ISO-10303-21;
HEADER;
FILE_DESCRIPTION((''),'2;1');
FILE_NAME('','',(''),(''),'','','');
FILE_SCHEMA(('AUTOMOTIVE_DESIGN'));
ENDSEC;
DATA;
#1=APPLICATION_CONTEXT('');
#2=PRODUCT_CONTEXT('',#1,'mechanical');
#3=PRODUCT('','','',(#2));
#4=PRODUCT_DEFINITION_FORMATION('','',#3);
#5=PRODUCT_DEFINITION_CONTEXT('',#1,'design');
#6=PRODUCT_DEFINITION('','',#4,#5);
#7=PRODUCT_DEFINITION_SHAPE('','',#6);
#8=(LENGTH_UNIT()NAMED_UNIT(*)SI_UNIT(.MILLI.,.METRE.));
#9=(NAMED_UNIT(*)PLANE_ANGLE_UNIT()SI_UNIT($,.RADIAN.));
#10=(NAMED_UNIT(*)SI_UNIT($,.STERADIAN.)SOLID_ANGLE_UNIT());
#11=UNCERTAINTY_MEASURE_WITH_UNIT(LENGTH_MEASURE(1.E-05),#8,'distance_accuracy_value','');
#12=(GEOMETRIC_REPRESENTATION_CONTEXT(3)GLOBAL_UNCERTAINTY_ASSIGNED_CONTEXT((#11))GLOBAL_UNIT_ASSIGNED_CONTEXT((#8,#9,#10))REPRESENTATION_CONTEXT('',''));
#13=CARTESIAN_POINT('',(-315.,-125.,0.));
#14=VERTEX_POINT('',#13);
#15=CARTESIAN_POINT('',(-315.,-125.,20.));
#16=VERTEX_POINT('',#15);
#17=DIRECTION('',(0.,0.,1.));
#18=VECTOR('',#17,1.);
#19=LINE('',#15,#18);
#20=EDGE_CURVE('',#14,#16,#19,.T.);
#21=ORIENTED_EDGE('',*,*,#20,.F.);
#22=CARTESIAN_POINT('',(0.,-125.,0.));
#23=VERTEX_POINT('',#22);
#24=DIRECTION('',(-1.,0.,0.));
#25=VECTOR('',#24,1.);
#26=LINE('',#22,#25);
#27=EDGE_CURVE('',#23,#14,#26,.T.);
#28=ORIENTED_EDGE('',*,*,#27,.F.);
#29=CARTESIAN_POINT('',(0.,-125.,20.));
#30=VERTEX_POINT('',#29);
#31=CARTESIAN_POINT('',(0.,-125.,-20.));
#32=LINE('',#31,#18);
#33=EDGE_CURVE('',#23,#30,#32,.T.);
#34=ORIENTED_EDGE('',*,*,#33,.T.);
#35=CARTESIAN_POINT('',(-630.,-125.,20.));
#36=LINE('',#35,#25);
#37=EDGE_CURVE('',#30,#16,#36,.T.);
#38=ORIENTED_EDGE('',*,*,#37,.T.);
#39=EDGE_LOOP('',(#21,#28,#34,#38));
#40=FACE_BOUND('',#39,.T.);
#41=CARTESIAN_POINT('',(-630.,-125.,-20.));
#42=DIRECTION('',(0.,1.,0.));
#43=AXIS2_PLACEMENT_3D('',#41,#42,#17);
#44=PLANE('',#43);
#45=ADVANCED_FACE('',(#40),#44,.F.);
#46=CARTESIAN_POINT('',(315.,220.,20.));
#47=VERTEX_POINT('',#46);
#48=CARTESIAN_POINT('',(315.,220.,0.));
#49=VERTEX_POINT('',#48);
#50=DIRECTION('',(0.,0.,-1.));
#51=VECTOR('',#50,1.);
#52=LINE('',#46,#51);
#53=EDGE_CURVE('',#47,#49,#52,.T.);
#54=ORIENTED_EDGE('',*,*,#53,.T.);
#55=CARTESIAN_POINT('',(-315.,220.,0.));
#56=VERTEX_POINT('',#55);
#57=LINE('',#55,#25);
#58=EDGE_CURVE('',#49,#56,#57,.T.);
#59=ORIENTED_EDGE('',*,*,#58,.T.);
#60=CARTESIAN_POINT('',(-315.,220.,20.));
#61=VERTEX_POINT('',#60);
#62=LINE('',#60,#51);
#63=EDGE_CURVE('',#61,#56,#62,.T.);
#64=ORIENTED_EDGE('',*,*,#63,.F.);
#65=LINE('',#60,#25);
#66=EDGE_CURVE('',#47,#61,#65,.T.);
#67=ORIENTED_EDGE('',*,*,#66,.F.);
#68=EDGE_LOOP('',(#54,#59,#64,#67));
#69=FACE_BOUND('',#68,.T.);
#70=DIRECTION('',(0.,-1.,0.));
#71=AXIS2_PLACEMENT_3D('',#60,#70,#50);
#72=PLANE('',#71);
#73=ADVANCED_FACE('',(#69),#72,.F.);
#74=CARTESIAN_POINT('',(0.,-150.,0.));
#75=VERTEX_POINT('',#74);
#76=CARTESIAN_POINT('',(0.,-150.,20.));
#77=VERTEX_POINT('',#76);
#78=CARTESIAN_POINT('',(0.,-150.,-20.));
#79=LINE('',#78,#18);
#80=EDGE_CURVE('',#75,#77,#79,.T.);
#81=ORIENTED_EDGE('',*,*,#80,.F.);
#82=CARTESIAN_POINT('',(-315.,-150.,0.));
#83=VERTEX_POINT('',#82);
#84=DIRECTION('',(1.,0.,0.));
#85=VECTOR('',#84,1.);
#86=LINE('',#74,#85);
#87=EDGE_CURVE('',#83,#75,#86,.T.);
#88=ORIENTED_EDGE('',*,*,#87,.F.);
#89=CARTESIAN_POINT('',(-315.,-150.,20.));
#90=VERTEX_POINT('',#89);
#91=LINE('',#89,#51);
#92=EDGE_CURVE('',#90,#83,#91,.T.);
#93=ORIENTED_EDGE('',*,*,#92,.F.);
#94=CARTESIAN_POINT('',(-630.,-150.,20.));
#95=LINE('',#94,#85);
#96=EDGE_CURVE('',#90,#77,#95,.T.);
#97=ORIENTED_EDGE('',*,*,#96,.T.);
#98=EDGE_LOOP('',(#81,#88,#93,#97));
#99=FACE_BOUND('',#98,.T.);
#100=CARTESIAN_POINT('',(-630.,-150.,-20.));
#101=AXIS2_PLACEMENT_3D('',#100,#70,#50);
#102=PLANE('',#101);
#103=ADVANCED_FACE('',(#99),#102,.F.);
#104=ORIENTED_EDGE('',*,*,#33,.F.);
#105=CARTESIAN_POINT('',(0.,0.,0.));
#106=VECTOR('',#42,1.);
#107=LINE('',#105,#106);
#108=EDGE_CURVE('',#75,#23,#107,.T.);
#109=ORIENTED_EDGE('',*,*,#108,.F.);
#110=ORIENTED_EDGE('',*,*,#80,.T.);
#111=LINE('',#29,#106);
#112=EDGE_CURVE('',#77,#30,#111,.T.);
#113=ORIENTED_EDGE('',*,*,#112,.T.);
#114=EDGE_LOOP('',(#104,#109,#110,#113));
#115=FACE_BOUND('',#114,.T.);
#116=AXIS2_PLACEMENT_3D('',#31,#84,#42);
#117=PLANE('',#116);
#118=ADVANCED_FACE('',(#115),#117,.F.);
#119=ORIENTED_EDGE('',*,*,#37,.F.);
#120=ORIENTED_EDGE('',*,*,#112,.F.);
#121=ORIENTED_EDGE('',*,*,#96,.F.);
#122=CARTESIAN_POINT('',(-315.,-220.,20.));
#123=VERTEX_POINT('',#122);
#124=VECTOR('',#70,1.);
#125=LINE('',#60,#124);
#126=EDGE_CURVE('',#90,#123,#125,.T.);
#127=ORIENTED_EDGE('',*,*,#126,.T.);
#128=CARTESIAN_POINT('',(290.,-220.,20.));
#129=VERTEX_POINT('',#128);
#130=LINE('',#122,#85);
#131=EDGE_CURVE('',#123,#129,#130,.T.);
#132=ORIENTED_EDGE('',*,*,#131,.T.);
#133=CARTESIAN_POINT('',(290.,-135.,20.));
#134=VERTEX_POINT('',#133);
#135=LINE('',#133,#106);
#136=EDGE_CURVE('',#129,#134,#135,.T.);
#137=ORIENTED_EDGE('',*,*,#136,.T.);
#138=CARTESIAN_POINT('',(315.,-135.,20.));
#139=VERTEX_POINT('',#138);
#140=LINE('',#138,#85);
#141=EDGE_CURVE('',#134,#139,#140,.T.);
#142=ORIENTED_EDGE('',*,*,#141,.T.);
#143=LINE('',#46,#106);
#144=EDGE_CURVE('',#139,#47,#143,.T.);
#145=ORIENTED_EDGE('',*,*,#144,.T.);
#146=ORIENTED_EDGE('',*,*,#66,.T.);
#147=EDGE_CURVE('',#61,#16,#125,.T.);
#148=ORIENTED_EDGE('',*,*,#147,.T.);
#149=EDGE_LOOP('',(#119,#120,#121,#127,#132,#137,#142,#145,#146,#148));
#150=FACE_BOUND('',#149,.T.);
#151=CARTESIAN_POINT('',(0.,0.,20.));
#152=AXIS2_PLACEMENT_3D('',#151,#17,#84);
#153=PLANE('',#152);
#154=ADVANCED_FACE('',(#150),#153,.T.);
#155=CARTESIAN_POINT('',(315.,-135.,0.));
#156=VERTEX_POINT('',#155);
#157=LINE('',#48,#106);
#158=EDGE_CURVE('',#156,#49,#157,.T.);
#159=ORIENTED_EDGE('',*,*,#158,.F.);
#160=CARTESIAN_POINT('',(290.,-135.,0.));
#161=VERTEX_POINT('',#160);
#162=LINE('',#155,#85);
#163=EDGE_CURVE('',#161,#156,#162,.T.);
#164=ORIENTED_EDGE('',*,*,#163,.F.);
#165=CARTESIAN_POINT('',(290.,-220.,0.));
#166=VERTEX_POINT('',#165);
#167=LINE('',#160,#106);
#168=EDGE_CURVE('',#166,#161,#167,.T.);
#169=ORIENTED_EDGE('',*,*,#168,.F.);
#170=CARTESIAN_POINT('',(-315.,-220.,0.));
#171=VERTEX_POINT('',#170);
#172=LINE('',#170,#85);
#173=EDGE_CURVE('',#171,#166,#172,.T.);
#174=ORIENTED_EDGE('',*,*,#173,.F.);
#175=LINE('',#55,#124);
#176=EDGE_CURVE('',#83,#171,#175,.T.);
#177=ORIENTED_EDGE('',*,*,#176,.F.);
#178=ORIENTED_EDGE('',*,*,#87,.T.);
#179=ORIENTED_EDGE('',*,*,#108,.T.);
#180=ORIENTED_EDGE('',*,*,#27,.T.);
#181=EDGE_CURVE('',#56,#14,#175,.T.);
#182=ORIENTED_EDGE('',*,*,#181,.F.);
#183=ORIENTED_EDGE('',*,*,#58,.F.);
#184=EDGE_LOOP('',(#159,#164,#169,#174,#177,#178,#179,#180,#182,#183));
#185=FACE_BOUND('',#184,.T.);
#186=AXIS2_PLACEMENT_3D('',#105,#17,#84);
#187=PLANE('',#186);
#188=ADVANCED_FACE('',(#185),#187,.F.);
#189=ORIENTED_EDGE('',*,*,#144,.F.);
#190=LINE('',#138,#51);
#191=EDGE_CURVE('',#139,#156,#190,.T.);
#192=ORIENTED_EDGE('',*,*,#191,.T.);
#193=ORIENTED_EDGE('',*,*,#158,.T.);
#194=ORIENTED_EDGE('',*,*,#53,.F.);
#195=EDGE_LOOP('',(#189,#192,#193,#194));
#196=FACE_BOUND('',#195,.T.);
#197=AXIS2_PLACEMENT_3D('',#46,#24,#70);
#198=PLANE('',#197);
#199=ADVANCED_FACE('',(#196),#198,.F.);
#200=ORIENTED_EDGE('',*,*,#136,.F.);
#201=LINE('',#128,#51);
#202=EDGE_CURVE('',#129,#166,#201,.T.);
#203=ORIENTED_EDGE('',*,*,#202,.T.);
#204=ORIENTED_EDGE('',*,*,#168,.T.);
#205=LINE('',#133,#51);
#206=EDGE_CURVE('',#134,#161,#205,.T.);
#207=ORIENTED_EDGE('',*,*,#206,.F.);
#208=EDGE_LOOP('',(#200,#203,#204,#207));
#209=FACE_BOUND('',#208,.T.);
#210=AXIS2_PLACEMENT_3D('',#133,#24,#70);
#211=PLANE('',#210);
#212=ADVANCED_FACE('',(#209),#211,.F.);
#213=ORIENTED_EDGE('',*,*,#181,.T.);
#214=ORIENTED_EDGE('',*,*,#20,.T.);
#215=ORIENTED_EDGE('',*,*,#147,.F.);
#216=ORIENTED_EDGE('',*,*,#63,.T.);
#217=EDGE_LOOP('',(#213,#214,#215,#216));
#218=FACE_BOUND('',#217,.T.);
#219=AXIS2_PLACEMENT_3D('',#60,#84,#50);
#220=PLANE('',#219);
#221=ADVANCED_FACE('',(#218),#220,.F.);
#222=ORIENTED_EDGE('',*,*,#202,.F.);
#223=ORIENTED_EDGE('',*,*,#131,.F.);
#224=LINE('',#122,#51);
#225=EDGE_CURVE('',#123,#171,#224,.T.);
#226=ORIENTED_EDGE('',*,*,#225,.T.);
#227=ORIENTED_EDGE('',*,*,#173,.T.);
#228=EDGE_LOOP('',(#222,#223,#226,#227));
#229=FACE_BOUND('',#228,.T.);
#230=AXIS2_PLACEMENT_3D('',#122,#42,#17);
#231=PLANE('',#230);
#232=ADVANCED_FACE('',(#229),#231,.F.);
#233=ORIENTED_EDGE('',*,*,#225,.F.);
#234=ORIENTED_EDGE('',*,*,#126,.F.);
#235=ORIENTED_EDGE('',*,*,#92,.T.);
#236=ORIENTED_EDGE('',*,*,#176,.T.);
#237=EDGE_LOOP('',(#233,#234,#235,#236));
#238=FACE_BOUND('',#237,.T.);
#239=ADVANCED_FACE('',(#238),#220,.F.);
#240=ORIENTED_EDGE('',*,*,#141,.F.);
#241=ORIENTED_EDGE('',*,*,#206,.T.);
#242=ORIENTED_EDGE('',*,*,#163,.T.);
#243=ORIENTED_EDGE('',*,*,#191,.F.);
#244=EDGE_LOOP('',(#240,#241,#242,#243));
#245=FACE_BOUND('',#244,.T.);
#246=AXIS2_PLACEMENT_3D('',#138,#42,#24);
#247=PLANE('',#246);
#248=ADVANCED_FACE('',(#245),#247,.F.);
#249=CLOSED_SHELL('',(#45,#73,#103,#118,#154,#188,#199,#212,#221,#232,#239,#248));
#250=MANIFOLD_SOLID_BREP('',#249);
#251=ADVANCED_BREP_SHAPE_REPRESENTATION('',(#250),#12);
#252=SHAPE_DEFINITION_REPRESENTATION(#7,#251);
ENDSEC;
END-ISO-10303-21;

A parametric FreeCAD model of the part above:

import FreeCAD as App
import Part
import Sketcher

doc = App.newDocument("Part")
body = doc.addObject("PartDesign::Body", "Body")

sketch1 = body.newObject("Sketcher::SketchObject", "Sketch")
sketch1.AttachmentSupport = (doc.getObject("XY_Plane"), [""])
sketch1.MapMode = "FlatFace"
sketch1.addGeometry(Part.LineSegment(App.Vector(290, -135, 0), App.Vector(315, -135, 0)), False)
sketch1.addGeometry(Part.LineSegment(App.Vector(315, -135, 0), App.Vector(315, 220, 0)), False)
sketch1.addGeometry(Part.LineSegment(App.Vector(315, 220, 0), App.Vector(-315, 220, 0)), False)
sketch1.addGeometry(Part.LineSegment(App.Vector(-315, 220, 0), App.Vector(-315, -220, 0)), False)
sketch1.addGeometry(Part.LineSegment(App.Vector(-315, -220, 0), App.Vector(290, -220, 0)), False)
sketch1.addGeometry(Part.LineSegment(App.Vector(290, -220, 0), App.Vector(290, -135, 0)), False)
sketch1.addConstraint(Sketcher.Constraint("Coincident", 0, 2, 1, 1))
sketch1.addConstraint(Sketcher.Constraint("Coincident", 1, 2, 2, 1))
sketch1.addConstraint(Sketcher.Constraint("Coincident", 2, 2, 3, 1))
sketch1.addConstraint(Sketcher.Constraint("Coincident", 3, 2, 4, 1))
sketch1.addConstraint(Sketcher.Constraint("Coincident", 4, 2, 5, 1))
sketch1.addConstraint(Sketcher.Constraint("Coincident", 5, 2, 0, 1))
sketch1.addConstraint(Sketcher.Constraint("Horizontal", 0))
sketch1.addConstraint(Sketcher.Constraint("Vertical", 1))
sketch1.addConstraint(Sketcher.Constraint("Horizontal", 2))
sketch1.addConstraint(Sketcher.Constraint("Vertical", 3))
sketch1.addConstraint(Sketcher.Constraint("Horizontal", 4))
sketch1.addConstraint(Sketcher.Constraint("Vertical", 5))
sketch1.addConstraint(Sketcher.Constraint("Symmetric", 1, 2, 3, 2, -1, 1))
sketch1.addConstraint(Sketcher.Constraint("DistanceX", 0, 1, 0, 2, 25.0))
sketch1.addConstraint(Sketcher.Constraint("DistanceX", 2, 2, 2, 1, 630.0))
sketch1.addConstraint(Sketcher.Constraint("DistanceY", 1, 1, 1, 2, 355.0))
sketch1.addConstraint(Sketcher.Constraint("DistanceY", 3, 2, 3, 1, 440.0))
pad1 = body.newObject("PartDesign::Pad", "Pad")
pad1.Profile = sketch1
pad1.Length = 20

sketch2 = body.newObject("Sketcher::SketchObject", "Sketch001")
sketch2.AttachmentSupport = (doc.getObject("XY_Plane"), [""])
sketch2.MapMode = "FlatFace"
sketch2.AttachmentOffset = App.Placement(App.Vector(0, 0, 20), App.Rotation())
sketch2.addGeometry(Part.LineSegment(App.Vector(-630, -125, 0), App.Vector(-630, -150, 0)), False)
sketch2.addGeometry(Part.LineSegment(App.Vector(-630, -150, 0), App.Vector(0, -150, 0)), False)
sketch2.addGeometry(Part.LineSegment(App.Vector(0, -150, 0), App.Vector(0, -125, 0)), False)
sketch2.addGeometry(Part.LineSegment(App.Vector(0, -125, 0), App.Vector(-630, -125, 0)), False)
sketch2.addConstraint(Sketcher.Constraint("Coincident", 0, 2, 1, 1))
sketch2.addConstraint(Sketcher.Constraint("Coincident", 1, 2, 2, 1))
sketch2.addConstraint(Sketcher.Constraint("Coincident", 2, 2, 3, 1))
sketch2.addConstraint(Sketcher.Constraint("Coincident", 3, 2, 0, 1))
sketch2.addConstraint(Sketcher.Constraint("Vertical", 0))
sketch2.addConstraint(Sketcher.Constraint("Horizontal", 1))
sketch2.addConstraint(Sketcher.Constraint("Vertical", 2))
sketch2.addConstraint(Sketcher.Constraint("Horizontal", 3))
sketch2.addConstraint(Sketcher.Constraint("PointOnObject", 1, 2, -2))
sketch2.addConstraint(Sketcher.Constraint("DistanceX", 1, 1, 1, 2, 630.0))
sketch2.addConstraint(Sketcher.Constraint("DistanceY", 0, 2, 0, 1, 25.0))
sketch2.addConstraint(Sketcher.Constraint("DistanceY", 0, 2, -1, 1, 150.0))
pocket1 = body.newObject("PartDesign::Pocket", "Pocket")
pocket1.Profile = sketch2
pocket1.Length = 40

doc.recompute()
